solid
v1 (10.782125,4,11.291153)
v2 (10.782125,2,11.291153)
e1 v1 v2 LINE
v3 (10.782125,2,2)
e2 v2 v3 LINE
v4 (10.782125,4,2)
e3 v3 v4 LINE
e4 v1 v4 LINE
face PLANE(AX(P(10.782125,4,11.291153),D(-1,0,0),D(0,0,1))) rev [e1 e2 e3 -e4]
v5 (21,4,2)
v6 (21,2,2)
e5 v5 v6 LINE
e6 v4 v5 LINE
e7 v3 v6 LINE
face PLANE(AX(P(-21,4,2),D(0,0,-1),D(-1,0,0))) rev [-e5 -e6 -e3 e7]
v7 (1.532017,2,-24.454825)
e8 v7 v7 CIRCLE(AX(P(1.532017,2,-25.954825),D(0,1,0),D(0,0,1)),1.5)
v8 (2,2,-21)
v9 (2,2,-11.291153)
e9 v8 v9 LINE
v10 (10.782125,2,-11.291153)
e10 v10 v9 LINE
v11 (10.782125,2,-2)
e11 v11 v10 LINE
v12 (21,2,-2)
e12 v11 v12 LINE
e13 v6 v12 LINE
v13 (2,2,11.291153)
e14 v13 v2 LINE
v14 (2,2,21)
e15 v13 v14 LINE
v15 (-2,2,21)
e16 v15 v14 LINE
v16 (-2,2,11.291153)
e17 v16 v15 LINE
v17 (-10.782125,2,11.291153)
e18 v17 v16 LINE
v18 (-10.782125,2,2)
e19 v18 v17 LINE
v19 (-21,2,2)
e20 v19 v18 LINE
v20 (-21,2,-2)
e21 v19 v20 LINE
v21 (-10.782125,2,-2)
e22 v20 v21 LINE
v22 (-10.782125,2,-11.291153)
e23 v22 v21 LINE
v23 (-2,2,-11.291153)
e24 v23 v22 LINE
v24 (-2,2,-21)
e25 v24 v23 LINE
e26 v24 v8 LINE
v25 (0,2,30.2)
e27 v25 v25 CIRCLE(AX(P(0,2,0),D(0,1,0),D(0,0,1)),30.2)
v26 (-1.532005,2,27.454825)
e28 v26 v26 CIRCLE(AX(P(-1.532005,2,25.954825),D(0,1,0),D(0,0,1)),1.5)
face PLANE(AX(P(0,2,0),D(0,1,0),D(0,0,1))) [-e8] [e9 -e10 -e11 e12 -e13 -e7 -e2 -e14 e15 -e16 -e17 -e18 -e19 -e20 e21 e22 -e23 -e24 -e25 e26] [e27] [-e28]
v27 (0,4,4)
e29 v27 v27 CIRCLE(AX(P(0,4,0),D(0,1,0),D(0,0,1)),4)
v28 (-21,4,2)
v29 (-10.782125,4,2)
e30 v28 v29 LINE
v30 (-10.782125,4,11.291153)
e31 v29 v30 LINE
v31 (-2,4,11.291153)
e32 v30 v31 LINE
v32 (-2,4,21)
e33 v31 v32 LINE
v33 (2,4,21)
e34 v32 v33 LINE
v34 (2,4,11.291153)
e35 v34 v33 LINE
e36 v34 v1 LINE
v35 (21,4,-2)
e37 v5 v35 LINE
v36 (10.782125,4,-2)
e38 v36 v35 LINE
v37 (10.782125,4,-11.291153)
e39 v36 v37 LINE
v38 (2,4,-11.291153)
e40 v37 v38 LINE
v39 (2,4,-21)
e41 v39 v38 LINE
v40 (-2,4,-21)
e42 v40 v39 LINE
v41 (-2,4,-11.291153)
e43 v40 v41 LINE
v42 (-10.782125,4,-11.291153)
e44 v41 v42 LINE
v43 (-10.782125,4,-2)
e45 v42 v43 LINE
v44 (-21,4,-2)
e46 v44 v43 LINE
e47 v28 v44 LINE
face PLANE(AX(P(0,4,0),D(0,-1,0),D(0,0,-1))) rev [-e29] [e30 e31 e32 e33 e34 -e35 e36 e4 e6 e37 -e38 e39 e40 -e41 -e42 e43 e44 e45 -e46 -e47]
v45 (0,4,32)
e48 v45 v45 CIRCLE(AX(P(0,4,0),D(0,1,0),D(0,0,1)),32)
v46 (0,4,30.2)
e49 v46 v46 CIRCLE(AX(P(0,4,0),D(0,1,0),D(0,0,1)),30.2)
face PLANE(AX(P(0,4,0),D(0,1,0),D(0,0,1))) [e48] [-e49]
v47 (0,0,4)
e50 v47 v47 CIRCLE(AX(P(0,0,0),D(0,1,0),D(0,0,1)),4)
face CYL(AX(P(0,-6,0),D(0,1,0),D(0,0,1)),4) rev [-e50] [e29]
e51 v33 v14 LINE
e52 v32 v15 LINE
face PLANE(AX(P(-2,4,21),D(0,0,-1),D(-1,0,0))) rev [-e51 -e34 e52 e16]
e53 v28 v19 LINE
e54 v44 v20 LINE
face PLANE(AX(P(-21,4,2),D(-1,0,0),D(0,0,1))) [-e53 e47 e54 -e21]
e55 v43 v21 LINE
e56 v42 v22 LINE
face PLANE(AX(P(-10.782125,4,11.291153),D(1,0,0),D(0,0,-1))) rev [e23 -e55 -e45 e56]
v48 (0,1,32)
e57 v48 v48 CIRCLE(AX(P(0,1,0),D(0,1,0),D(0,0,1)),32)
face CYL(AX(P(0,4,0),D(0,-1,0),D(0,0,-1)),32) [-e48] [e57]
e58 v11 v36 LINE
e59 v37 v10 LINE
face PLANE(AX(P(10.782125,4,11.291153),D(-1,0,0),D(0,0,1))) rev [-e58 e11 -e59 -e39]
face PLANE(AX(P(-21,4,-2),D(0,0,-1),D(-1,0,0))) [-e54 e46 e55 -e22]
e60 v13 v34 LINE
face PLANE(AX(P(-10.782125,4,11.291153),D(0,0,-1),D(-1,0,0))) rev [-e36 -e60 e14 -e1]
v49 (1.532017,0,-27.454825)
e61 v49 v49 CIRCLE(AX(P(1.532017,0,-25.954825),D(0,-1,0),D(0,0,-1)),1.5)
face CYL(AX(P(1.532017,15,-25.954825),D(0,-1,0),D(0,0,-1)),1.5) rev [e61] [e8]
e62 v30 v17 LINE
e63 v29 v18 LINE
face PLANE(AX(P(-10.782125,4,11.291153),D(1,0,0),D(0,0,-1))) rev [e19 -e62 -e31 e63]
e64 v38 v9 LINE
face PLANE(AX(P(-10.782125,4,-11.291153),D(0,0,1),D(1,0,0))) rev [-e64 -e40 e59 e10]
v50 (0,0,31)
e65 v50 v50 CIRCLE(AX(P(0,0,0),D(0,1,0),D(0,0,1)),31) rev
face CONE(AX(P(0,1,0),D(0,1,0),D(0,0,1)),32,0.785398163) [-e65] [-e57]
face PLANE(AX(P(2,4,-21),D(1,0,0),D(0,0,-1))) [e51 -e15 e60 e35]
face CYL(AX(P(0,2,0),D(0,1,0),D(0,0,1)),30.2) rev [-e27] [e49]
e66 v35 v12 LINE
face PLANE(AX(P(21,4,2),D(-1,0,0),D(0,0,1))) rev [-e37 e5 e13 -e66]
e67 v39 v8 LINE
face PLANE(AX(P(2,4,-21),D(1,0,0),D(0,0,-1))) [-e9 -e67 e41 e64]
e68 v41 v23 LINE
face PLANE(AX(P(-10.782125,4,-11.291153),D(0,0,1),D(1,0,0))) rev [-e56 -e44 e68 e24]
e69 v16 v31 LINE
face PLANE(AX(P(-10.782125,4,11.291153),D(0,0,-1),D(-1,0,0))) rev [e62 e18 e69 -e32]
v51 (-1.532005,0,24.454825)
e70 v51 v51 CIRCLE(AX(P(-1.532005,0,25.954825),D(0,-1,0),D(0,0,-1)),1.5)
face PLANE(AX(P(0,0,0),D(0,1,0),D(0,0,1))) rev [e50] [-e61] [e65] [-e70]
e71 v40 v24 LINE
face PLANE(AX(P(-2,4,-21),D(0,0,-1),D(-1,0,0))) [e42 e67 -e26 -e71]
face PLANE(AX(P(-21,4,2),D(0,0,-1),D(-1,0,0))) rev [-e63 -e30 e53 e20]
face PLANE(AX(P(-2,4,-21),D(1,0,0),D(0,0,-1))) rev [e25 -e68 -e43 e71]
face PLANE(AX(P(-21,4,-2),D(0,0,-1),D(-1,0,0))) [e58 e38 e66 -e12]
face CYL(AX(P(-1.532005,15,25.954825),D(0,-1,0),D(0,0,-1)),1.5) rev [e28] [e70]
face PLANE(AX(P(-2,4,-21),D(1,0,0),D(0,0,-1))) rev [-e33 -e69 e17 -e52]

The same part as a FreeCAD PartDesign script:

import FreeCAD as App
import Part
import Sketcher

V = App.Vector
Q = App.Units.Quantity


def edges_at(feature, points):
    """Names of the edges that pass closest to the given points."""
    edges = feature.Shape.Edges
    near = lambda p: min(range(len(edges)), key=lambda i: edges[i].distToShape(Part.Vertex(*p))[0])
    return sorted({f"Edge{near(p) + 1}" for p in points})


def add_polygon(sketch, points):
    """Adds a closed chain of lines whose ends are joined by coincident constraints."""
    first, n = sketch.GeometryCount, len(points)
    for a, b in zip(points, points[1:] + points[:1]):
        sketch.addGeometry(Part.LineSegment(App.Vector(*a, 0), App.Vector(*b, 0)), False)
    for i in range(n):
        sketch.addConstraint(Sketcher.Constraint("Coincident", first + i, 2, first + (i + 1) % n, 1))

doc = App.newDocument("Part")
params = doc.addObject("Spreadsheet::Sheet", "Params")
for row, (alias, value) in enumerate([
    ("sketch1_diameter", "64 mm"),
    ("pad1_length", "4 mm"),
    ("sketch2_diameter", "60.4 mm"),
    ("pocket1_length", "2 mm"),
    ("chamfer_size", "1 mm"),
    ("sketch3_diameter", "3 mm"),
    ("pocket2_length", "15 mm"),
    ("sketch4_width", "4 mm"),
    ("sketch4_width2", "19 mm"),
    ("pad2_length", "2 mm"),
    ("sketch5_diameter", "8 mm"),
    ("pocket3_length", "10 mm"),
    ("sketch6_width", "15 mm"),
    ("sketch6_height", "20 mm"),
    ("pocket4_length", "10 mm"),
    ("sketch7_diameter", "8 mm"),
    ("pad3_length", "2 mm"),
], start=1):
    params.set(f"A{row}", alias)
    params.set(f"B{row}", "=" + value)
    params.setAlias(f"B{row}", alias)

body = doc.addObject("PartDesign::Body", "Body")

sketch1 = body.newObject("Sketcher::SketchObject", "Sketch")
sketch1.AttachmentSupport = (doc.getObject("XZ_Plane"), [""])
sketch1.MapMode = "FlatFace"
sketch1.addGeometry(Part.Circle(V(0, 0, 0), V(0, 0, 1), 32), False)
sketch1.addConstraint([
    Sketcher.Constraint("Coincident", 0, 3, -1, 1),
    Sketcher.Constraint("Diameter", 0, Q("64 mm")),
])
sketch1.setExpression("Constraints[1]", "Params.sketch1_diameter")
pad1 = body.newObject("PartDesign::Pad", "Pad")
pad1.Profile = sketch1
pad1.setExpression("Length", "Params.pad1_length")
pad1.Reversed = True

sketch2 = body.newObject("Sketcher::SketchObject", "Sketch001")
sketch2.AttachmentSupport = (doc.getObject("XZ_Plane"), [""])
sketch2.MapMode = "FlatFace"
sketch2.AttachmentOffset = App.Placement(V(0, 0, -4), App.Rotation())
sketch2.addGeometry(Part.Circle(V(0, 0, 0), V(0, 0, 1), 30), False)
sketch2.addConstraint([
    Sketcher.Constraint("Coincident", 0, 3, -1, 1),
    Sketcher.Constraint("Diameter", 0, Q("60.4 mm")),
])
sketch2.setExpression("Constraints[1]", "Params.sketch2_diameter")
pocket1 = body.newObject("PartDesign::Pocket", "Pocket")
pocket1.Profile = sketch2
pocket1.setExpression("Length", "Params.pocket1_length")
pocket1.Reversed = True
doc.recompute()

chamfer = body.newObject("PartDesign::Chamfer", "Chamfer")
chamfer.Base = (pocket1, edges_at(pocket1, [(0, 0, -32)]))
chamfer.setExpression("Size", "Params.chamfer_size")

sketch3 = body.newObject("Sketcher::SketchObject", "Sketch002")
sketch3.AttachmentSupport = (doc.getObject("XZ_Plane"), [""])
sketch3.MapMode = "FlatFace"
sketch3.addGeometry([
    Part.Circle(V(-1.5, 26, 0), V(0, 0, 1), 1.5),
    Part.Circle(V(1.5, -26, 0), V(0, 0, 1), 1.5),
], False)
sketch3.addConstraint([
    Sketcher.Constraint("Equal", 0, 1),
    Sketcher.Constraint("Diameter", 0, Q("3 mm")),
    Sketcher.Constraint("DistanceY", 1, 3, 0, 3, Q("51.90965 mm")),
    Sketcher.Constraint("DistanceX", 0, 3, -1, 1, Q("1.532005 mm")),
    Sketcher.Constraint("DistanceY", -1, 1, 0, 3, Q("25.954825 mm")),
    Sketcher.Constraint("DistanceX", -1, 1, 1, 3, Q("1.532017 mm")),
])
sketch3.setExpression("Constraints[1]", "Params.sketch3_diameter")
pocket2 = body.newObject("PartDesign::Pocket", "Pocket001")
pocket2.Profile = sketch3
pocket2.setExpression("Length", "Params.pocket2_length")

sketch4 = body.newObject("Sketcher::SketchObject", "Sketch003")
sketch4.AttachmentSupport = (doc.getObject("XZ_Plane"), [""])
sketch4.MapMode = "FlatFace"
sketch4.AttachmentOffset = App.Placement(V(0, 0, -2), App.Rotation())
add_polygon(sketch4, [(-2, 2), (-2, 21), (2, 21), (2, 2), (21, 2), (21, -2), (2, -2), (2, -21), (-2, -21), (-2, -2), (-21, -2), (-21, 2)])
sketch4.addConstraint([
    Sketcher.Constraint("Vertical", 0),
    Sketcher.Constraint("Horizontal", 1),
    Sketcher.Constraint("Vertical", 2),
    Sketcher.Constraint("Horizontal", 3),
    Sketcher.Constraint("Vertical", 4),
    Sketcher.Constraint("Horizontal", 5),
    Sketcher.Constraint("Vertical", 6),
    Sketcher.Constraint("Horizontal", 7),
    Sketcher.Constraint("Vertical", 8),
    Sketcher.Constraint("Horizontal", 9),
    Sketcher.Constraint("Vertical", 10),
    Sketcher.Constraint("Horizontal", 11),
    Sketcher.Constraint("Symmetric", 0, 2, 6, 2, -1, 1),
    Sketcher.Constraint("Symmetric", 2, 2, 8, 2, -1, 1),
    Sketcher.Constraint("Symmetric", 4, 2, 10, 2, -1, 1),
    Sketcher.Constraint("Symmetric", 5, 2, 8, 2, -2),
    Sketcher.Constraint("Equal", 11, 0),
    Sketcher.Constraint("Equal", 7, 4),
    Sketcher.Constraint("DistanceX", 1, 1, 1, 2, Q("4 mm")),
    Sketcher.Constraint("DistanceX", 3, 1, 3, 2, Q("19 mm")),
])
sketch4.setExpression("Constraints[30]", "Params.sketch4_width")
sketch4.setExpression("Constraints[31]", "Params.sketch4_width2")
pad2 = body.newObject("PartDesign::Pad", "Pad001")
pad2.Profile = sketch4
pad2.setExpression("Length", "Params.pad2_length")
pad2.Reversed = True

sketch5 = body.newObject("Sketcher::SketchObject", "Sketch004")
sketch5.AttachmentSupport = (doc.getObject("XZ_Plane"), [""])
sketch5.MapMode = "FlatFace"
sketch5.AttachmentOffset = App.Placement(V(0, 0, -4), App.Rotation())
sketch5.addGeometry(Part.Circle(V(0, 0, 0), V(0, 0, 1), 4), False)
sketch5.addConstraint([
    Sketcher.Constraint("Coincident", 0, 3, -1, 1),
    Sketcher.Constraint("Diameter", 0, Q("8 mm")),
])
sketch5.setExpression("Constraints[1]", "Params.sketch5_diameter")
pocket3 = body.newObject("PartDesign::Pocket", "Pocket002")
pocket3.Profile = sketch5
pocket3.setExpression("Length", "Params.pocket3_length")
pocket3.Reversed = True

sketch6 = body.newObject("Sketcher::SketchObject", "Sketch005")
sketch6.AttachmentSupport = (doc.getObject("XZ_Plane"), [""])
sketch6.MapMode = "FlatFace"
sketch6.AttachmentOffset = App.Placement(V(0, 0, -2), App.Rotation())
add_polygon(sketch6, [(-8, -10), (-8, 10), (8, 10), (8, -10)])
sketch6.addConstraint([
    Sketcher.Constraint("Vertical", 0),
    Sketcher.Constraint("Horizontal", 1),
    Sketcher.Constraint("Vertical", 2),
    Sketcher.Constraint("Horizontal", 3),
    Sketcher.Constraint("Symmetric", 0, 2, 2, 2, -1, 1),
    Sketcher.Constraint("DistanceX", 1, 1, 1, 2, Q("15 mm")),
    Sketcher.Constraint("DistanceY", 0, 1, 0, 2, Q("20 mm")),
])
sketch6.setExpression("Constraints[9]", "Params.sketch6_width")
sketch6.setExpression("Constraints[10]", "Params.sketch6_height")
pocket4 = body.newObject("PartDesign::Pocket", "Pocket003")
pocket4.Profile = sketch6
pocket4.setExpression("Length", "Params.pocket4_length")

sketch7 = body.newObject("Sketcher::SketchObject", "Sketch006")
sketch7.AttachmentSupport = (doc.getObject("XZ_Plane"), [""])
sketch7.MapMode = "FlatFace"
sketch7.AttachmentOffset = App.Placement(V(0, 0, -4), App.Rotation())
add_polygon(sketch7, [(-10.8, -11.3), (-10.8, 11.3), (10.8, 11.3), (10.8, -11.3)])
sketch7.addGeometry(Part.Circle(V(0, 0, 0), V(0, 0, 1), 4), False)
sketch7.addConstraint([
    Sketcher.Constraint("Vertical", 0),
    Sketcher.Constraint("Horizontal", 1),
    Sketcher.Constraint("Vertical", 2),
    Sketcher.Constraint("Horizontal", 3),
    Sketcher.Constraint("Coincident", 4, 3, -1, 1),
    Sketcher.Constraint("Symmetric", 0, 2, 2, 2, -1, 1),
    Sketcher.Constraint("Diameter", 4, Q("8 mm")),
    Sketcher.Constraint("DistanceX", 1, 1, 1, 2, Q("21.564251 mm")),
    Sketcher.Constraint("DistanceY", 0, 1, 0, 2, Q("22.582305 mm")),
])
sketch7.setExpression("Constraints[10]", "Params.sketch7_diameter")
pad3 = body.newObject("PartDesign::Pad", "Pad002")
pad3.Profile = sketch7
pad3.setExpression("Length", "Params.pad3_length")

doc.recompute()
